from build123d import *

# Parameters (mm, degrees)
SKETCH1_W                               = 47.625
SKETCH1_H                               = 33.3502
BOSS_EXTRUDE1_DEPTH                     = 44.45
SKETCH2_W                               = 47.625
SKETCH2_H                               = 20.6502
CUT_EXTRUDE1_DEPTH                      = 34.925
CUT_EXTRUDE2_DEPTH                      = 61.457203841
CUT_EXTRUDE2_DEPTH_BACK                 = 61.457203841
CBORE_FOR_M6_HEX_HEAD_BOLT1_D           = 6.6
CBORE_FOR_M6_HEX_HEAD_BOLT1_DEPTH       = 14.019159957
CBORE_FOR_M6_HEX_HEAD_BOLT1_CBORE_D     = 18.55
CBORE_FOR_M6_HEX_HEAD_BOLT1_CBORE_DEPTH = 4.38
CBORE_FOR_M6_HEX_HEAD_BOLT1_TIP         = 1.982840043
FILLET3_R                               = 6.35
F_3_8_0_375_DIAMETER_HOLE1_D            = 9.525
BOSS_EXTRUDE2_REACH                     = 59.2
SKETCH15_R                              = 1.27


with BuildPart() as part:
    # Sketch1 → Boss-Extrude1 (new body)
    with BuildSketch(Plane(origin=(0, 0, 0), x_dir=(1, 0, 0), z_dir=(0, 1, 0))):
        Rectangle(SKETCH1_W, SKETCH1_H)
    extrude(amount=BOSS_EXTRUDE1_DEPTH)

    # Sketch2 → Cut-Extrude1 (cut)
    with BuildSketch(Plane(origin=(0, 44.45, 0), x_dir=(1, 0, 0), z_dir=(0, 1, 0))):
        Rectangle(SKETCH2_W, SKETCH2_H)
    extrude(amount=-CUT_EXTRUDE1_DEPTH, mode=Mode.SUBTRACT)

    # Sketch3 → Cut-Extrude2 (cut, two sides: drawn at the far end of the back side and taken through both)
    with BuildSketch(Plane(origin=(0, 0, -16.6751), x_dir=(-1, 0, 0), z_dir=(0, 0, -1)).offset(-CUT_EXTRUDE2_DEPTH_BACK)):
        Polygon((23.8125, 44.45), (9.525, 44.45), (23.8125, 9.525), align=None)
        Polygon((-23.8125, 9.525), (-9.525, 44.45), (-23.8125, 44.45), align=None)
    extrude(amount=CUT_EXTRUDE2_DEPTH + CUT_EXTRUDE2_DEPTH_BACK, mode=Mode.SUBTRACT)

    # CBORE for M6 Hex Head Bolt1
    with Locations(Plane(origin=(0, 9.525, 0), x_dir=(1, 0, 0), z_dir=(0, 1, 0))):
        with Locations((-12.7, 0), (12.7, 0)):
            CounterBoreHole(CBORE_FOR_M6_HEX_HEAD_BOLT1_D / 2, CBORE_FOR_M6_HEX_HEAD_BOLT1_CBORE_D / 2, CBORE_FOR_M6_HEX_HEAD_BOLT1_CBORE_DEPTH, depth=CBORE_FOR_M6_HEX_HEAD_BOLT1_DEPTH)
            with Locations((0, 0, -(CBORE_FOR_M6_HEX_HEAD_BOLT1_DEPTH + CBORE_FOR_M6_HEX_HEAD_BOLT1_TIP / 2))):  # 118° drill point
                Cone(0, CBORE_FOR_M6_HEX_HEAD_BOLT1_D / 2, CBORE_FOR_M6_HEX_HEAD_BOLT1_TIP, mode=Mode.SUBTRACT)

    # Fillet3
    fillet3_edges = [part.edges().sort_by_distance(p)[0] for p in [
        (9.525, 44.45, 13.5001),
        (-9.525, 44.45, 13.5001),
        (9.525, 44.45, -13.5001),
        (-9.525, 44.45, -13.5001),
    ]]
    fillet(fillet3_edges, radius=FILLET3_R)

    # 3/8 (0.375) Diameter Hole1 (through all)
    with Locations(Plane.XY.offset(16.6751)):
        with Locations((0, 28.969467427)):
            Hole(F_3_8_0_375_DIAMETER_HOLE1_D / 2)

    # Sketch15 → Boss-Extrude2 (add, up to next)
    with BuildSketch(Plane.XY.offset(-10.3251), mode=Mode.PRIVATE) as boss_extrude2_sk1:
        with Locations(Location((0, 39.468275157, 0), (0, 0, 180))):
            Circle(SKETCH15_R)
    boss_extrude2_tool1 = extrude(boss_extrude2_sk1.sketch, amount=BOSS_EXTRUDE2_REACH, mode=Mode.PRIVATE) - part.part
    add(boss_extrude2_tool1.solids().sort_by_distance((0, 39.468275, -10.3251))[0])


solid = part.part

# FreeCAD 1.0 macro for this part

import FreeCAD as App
import Part
import Sketcher

V = App.Vector
Q = App.Units.Quantity


def edges_at(feature, points):
    """Names of the edges that pass closest to the given points."""
    edges = feature.Shape.Edges
    near = lambda p: min(range(len(edges)), key=lambda i: edges[i].distToShape(Part.Vertex(*p))[0])
    return sorted({f"Edge{near(p) + 1}" for p in points})

doc = App.newDocument("Part")
body = doc.addObject("PartDesign::Body", "Body")

sketch1 = body.newObject("Sketcher::SketchObject", "Sketch")
sketch1.AttachmentSupport = (doc.getObject("XZ_Plane"), [""])
sketch1.MapMode = "FlatFace"
sketch1.addGeometry([
    Part.LineSegment(V(-24, -17, 0), V(-24, 17, 0)),
    Part.LineSegment(V(-24, 17, 0), V(24, 17, 0)),
    Part.LineSegment(V(24, 17, 0), V(24, -17, 0)),
    Part.LineSegment(V(24, -17, 0), V(-24, -17, 0)),
], False)
sketch1.addConstraint([
    Sketcher.Constraint("Coincident", 0, 2, 1, 1),
    Sketcher.Constraint("Coincident", 1, 2, 2, 1),
    Sketcher.Constraint("Coincident", 2, 2, 3, 1),
    Sketcher.Constraint("Coincident", 3, 2, 0, 1),
    Sketcher.Constraint("Vertical", 0),
    Sketcher.Constraint("Horizontal", 1),
    Sketcher.Constraint("Vertical", 2),
    Sketcher.Constraint("Horizontal", 3),
    Sketcher.Constraint("Symmetric", 0, 2, 2, 2, -1, 1),
    Sketcher.Constraint("DistanceX", 1, 1, 1, 2, Q("1.875 in")),
    Sketcher.Constraint("DistanceY", 0, 1, 0, 2, Q("1.313 in")),
])
pad1 = body.newObject("PartDesign::Pad", "Pad")
pad1.Profile = sketch1
pad1.Length = Q("1.75 in")
pad1.Reversed = True

sketch2 = body.newObject("Sketcher::SketchObject", "Sketch001")
sketch2.AttachmentSupport = (doc.getObject("XZ_Plane"), [""])
sketch2.MapMode = "FlatFace"
sketch2.AttachmentOffset = App.Placement(V(0, 0, -1.75 * 25.4), App.Rotation())
sketch2.addGeometry([
    Part.LineSegment(V(-24, -10, 0), V(-24, 10, 0)),
    Part.LineSegment(V(-24, 10, 0), V(24, 10, 0)),
    Part.LineSegment(V(24, 10, 0), V(24, -10, 0)),
    Part.LineSegment(V(24, -10, 0), V(-24, -10, 0)),
], False)
sketch2.addConstraint([
    Sketcher.Constraint("Coincident", 0, 2, 1, 1),
    Sketcher.Constraint("Coincident", 1, 2, 2, 1),
    Sketcher.Constraint("Coincident", 2, 2, 3, 1),
    Sketcher.Constraint("Coincident", 3, 2, 0, 1),
    Sketcher.Constraint("Vertical", 0),
    Sketcher.Constraint("Horizontal", 1),
    Sketcher.Constraint("Vertical", 2),
    Sketcher.Constraint("Horizontal", 3),
    Sketcher.Constraint("Symmetric", 0, 2, 2, 2, -1, 1),
    Sketcher.Constraint("DistanceX", 1, 1, 1, 2, Q("1.875 in")),
    Sketcher.Constraint("DistanceY", 0, 1, 0, 2, Q("0.813 in")),
])
pocket1 = body.newObject("PartDesign::Pocket", "Pocket")
pocket1.Profile = sketch2
pocket1.Length = Q("1.375 in")
pocket1.Reversed = True

sketch3 = body.newObject("Sketcher::SketchObject", "Sketch002")
sketch3.AttachmentSupport = (doc.getObject("XY_Plane"), [""])
sketch3.MapMode = "FlatFace"
sketch3.AttachmentOffset = App.Placement(V(0, 0, -0.6565 * 25.4), App.Rotation())
sketch3.addGeometry([
    Part.LineSegment(V(-24, 44, 0), V(-10, 44, 0)),
    Part.LineSegment(V(-10, 44, 0), V(-24, 10, 0)),
    Part.LineSegment(V(-24, 10, 0), V(-24, 44, 0)),
    Part.LineSegment(V(24, 10, 0), V(10, 44, 0)),
    Part.LineSegment(V(10, 44, 0), V(24, 44, 0)),
    Part.LineSegment(V(24, 44, 0), V(24, 10, 0)),
], False)
sketch3.addConstraint([
    Sketcher.Constraint("Coincident", 0, 2, 1, 1),
    Sketcher.Constraint("Coincident", 1, 2, 2, 1),
    Sketcher.Constraint("Coincident", 2, 2, 0, 1),
    Sketcher.Constraint("Coincident", 3, 2, 4, 1),
    Sketcher.Constraint("Coincident", 4, 2, 5, 1),
    Sketcher.Constraint("Coincident", 5, 2, 3, 1),
    Sketcher.Constraint("Horizontal", 0),
    Sketcher.Constraint("Vertical", 2),
    Sketcher.Constraint("Horizontal", 4),
    Sketcher.Constraint("Vertical", 5),
    Sketcher.Constraint("Symmetric", 0, 2, 3, 2, -2),
    Sketcher.Constraint("Symmetric", 1, 2, 5, 2, -2),
    Sketcher.Constraint("DistanceX", 0, 1, 0, 2, Q("0.5625 in")),
    Sketcher.Constraint("DistanceY", 2, 1, 2, 2, Q("1.375 in")),
    Sketcher.Constraint("DistanceY", -1, 1, 0, 2, Q("1.75 in")),
    Sketcher.Constraint("DistanceX", 0, 2, 3, 2, Q("0.75 in")),
])
pocket2 = body.newObject("PartDesign::Pocket", "Pocket001")
pocket2.Profile = sketch3
pocket2.Type = "ThroughAll"
pocket2.Midplane = True

sketch4 = body.newObject("Sketcher::SketchObject", "Sketch003")
sketch4.AttachmentSupport = (doc.getObject("XZ_Plane"), [""])
sketch4.MapMode = "FlatFace"
sketch4.AttachmentOffset = App.Placement(V(0, 0, -0.375 * 25.4), App.Rotation())
sketch4.addGeometry([
    Part.Circle(V(-12.7, 0, 0), V(0, 0, 1), 3.3),
    Part.Circle(V(12.7, 0, 0), V(0, 0, 1), 3.3),
], False)
sketch4.addConstraint([
    Sketcher.Constraint("Equal", 0, 1),
    Sketcher.Constraint("Symmetric", 0, 3, 1, 3, -1, 1),
    Sketcher.Constraint("PointOnObject", 0, 3, -1),
    Sketcher.Constraint("DistanceX", 0, 3, 1, 3, Q("1 in")),
    Sketcher.Constraint("Diameter", 0, Q("6.6 mm")),
])
doc.recompute()
hole = body.newObject("PartDesign::Hole", "Hole")
hole.Profile = sketch4
hole.ThreadType = "None"
hole.Diameter = 6.6
hole.DepthType = "Dimension"
hole.Depth = 14.01916
hole.DrillPoint = "Angled"
hole.DrillPointAngle = 118
hole.HoleCutType = "Counterbore"
hole.HoleCutDiameter = 18.55
hole.HoleCutDepth = 4.38
hole.Reversed = True
doc.recompute()

fillet = body.newObject("PartDesign::Fillet", "Fillet")
fillet.Base = (hole, edges_at(hole, [
    (9.525, 44.45, 13.5),
    (-9.525, 44.45, 13.5),
    (9.525, 44.45, -13.5),
    (-9.525, 44.45, -13.5),
]))
fillet.Radius = Q("0.25 in")

sketch5 = body.newObject("Sketcher::SketchObject", "Sketch004")
sketch5.AttachmentSupport = (doc.getObject("XY_Plane"), [""])
sketch5.MapMode = "FlatFace"
sketch5.AttachmentOffset = App.Placement(V(0, 0, 0.6565 * 25.4), App.Rotation())
sketch5.addGeometry(Part.Circle(V(0, 29, 0), V(0, 0, 1), 4.8), False)
sketch5.addConstraint([
    Sketcher.Constraint("PointOnObject", 0, 3, -2),
    Sketcher.Constraint("Diameter", 0, Q("0.375 in")),
    Sketcher.Constraint("DistanceY", -1, 1, 0, 3, Q("28.969467 mm")),
])
doc.recompute()
hole2 = body.newObject("PartDesign::Hole", "Hole001")
hole2.Profile = sketch5
hole2.ThreadType = "None"
hole2.Diameter = Q("0.375 in")
hole2.DepthType = "ThroughAll"

sketch6 = body.newObject("Sketcher::SketchObject", "Sketch005")
sketch6.AttachmentSupport = (doc.getObject("XY_Plane"), [""])
sketch6.MapMode = "FlatFace"
sketch6.AttachmentOffset = App.Placement(V(0, 0, -0.4065 * 25.4), App.Rotation())
sketch6.addGeometry(Part.Circle(V(0, 39.5, 0), V(0, 0, 1), 1.3), False)
sketch6.addConstraint([
    Sketcher.Constraint("PointOnObject", 0, 3, -2),
    Sketcher.Constraint("Diameter", 0, Q("0.1 in")),
    Sketcher.Constraint("DistanceY", -1, 1, 0, 3, Q("39.468275 mm")),
])
pad2 = body.newObject("PartDesign::Pad", "Pad001")
pad2.Profile = sketch6
pad2.Type = "UpToFirst"

doc.recompute()
